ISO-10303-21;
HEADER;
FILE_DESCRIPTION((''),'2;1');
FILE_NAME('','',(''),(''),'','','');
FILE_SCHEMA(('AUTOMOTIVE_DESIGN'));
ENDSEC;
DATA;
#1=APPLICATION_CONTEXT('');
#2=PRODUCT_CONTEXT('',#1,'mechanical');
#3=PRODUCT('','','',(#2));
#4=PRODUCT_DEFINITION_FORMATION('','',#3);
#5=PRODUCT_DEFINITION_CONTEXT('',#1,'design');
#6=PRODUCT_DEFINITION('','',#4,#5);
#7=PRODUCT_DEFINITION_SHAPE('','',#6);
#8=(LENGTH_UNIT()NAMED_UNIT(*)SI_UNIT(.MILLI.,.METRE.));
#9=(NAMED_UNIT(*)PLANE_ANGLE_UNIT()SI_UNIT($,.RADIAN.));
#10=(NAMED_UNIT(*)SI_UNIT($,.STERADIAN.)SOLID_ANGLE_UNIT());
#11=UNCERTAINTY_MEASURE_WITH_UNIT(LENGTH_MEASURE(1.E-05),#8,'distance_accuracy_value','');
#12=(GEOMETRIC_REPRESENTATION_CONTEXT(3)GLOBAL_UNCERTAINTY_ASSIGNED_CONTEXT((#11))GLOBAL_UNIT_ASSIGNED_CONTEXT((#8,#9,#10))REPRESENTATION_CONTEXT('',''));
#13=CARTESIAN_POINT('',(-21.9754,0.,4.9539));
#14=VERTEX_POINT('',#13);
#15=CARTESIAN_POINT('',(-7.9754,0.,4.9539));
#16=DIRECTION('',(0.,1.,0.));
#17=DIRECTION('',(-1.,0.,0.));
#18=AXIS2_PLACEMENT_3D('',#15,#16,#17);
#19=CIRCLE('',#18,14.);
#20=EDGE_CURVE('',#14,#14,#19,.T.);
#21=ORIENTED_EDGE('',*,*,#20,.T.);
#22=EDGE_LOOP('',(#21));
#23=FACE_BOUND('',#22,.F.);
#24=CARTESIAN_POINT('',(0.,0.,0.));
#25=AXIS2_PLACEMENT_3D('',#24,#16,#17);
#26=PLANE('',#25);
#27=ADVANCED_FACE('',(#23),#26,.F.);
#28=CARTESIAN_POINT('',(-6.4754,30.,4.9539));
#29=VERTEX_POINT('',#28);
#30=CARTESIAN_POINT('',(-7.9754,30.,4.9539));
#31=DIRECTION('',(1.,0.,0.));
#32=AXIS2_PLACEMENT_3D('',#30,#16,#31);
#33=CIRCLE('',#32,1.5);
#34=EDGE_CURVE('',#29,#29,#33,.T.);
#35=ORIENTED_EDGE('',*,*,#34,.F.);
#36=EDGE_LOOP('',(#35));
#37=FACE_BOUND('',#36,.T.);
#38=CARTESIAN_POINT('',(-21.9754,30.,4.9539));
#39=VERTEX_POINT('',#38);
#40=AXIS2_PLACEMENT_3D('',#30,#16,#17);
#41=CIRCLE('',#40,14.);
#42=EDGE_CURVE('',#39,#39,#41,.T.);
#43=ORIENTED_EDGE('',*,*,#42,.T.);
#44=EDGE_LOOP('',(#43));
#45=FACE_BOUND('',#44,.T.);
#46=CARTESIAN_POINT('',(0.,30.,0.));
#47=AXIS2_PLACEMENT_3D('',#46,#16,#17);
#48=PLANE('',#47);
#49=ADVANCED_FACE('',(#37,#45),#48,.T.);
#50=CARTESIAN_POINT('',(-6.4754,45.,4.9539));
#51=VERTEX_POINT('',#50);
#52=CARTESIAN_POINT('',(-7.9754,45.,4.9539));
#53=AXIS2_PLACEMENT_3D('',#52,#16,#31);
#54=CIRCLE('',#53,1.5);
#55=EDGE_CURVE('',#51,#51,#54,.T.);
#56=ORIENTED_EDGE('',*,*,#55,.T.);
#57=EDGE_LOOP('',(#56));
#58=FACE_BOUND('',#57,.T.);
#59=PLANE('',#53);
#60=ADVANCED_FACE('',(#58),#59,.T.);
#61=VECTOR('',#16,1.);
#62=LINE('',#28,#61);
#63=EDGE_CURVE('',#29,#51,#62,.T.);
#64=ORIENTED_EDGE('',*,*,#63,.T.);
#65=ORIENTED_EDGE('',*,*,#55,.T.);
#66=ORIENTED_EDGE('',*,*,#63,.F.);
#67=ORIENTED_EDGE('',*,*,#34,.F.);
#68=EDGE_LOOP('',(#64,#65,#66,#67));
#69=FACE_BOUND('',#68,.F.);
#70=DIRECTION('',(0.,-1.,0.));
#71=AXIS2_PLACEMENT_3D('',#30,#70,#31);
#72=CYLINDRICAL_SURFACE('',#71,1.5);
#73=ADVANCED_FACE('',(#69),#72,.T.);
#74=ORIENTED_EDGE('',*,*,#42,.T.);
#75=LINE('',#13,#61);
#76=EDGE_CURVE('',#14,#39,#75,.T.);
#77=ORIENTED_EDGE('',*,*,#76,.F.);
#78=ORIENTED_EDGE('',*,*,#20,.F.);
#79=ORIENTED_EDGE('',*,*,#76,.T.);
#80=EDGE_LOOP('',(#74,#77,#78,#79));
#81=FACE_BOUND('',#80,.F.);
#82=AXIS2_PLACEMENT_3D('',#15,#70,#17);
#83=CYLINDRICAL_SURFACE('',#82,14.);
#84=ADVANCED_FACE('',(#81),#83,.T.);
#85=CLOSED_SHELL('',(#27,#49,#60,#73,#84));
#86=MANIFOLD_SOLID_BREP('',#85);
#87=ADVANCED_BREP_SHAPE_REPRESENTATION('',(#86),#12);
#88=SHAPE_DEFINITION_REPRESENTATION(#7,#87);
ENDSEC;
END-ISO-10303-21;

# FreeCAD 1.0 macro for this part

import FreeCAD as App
import Part
import Sketcher

V = App.Vector
Q = App.Units.Quantity

doc = App.newDocument("Part")
body = doc.addObject("PartDesign::Body", "Body")

# Sketch on XZ plane
sketch1 = body.newObject("Sketcher::SketchObject", "Sketch")
sketch1.AttachmentSupport = (doc.getObject("XZ_Plane"), [""])
sketch1.MapMode = "FlatFace"
sketch1.addGeometry(Part.Circle(V(-7.9754, 4.9539, 0), V(0, 0, 1), 14), False)
sketch1.addConstraint([
    Sketcher.Constraint("Diameter", 0, Q("28 mm")),
    Sketcher.Constraint("DistanceY", -1, 1, 0, 3, Q("4.954 mm")),
    Sketcher.Constraint("DistanceX", 0, 3, -1, 1, Q("7.9754 mm")),
])
pad1 = body.newObject("PartDesign::Pad", "Pad")
pad1.Profile = sketch1
pad1.Length = 30
pad1.Reversed = True

# Sketch on XZ plane
sketch2 = body.newObject("Sketcher::SketchObject", "Sketch001")
sketch2.AttachmentSupport = (doc.getObject("XZ_Plane"), [""])
sketch2.MapMode = "FlatFace"
sketch2.AttachmentOffset = App.Placement(V(0, 0, -30), App.Rotation())
sketch2.addGeometry(Part.Circle(V(-7.9754, 4.9539, 0), V(0, 0, 1), 1.5), False)
sketch2.addConstraint([
    Sketcher.Constraint("Diameter", 0, Q("3 mm")),
    Sketcher.Constraint("DistanceY", -1, 1, 0, 3, Q("4.954 mm")),
    Sketcher.Constraint("DistanceX", 0, 3, -1, 1, Q("7.9754 mm")),
])
pad2 = body.newObject("PartDesign::Pad", "Pad001")
pad2.Profile = sketch2
pad2.Length = 15
pad2.Reversed = True

doc.recompute()
